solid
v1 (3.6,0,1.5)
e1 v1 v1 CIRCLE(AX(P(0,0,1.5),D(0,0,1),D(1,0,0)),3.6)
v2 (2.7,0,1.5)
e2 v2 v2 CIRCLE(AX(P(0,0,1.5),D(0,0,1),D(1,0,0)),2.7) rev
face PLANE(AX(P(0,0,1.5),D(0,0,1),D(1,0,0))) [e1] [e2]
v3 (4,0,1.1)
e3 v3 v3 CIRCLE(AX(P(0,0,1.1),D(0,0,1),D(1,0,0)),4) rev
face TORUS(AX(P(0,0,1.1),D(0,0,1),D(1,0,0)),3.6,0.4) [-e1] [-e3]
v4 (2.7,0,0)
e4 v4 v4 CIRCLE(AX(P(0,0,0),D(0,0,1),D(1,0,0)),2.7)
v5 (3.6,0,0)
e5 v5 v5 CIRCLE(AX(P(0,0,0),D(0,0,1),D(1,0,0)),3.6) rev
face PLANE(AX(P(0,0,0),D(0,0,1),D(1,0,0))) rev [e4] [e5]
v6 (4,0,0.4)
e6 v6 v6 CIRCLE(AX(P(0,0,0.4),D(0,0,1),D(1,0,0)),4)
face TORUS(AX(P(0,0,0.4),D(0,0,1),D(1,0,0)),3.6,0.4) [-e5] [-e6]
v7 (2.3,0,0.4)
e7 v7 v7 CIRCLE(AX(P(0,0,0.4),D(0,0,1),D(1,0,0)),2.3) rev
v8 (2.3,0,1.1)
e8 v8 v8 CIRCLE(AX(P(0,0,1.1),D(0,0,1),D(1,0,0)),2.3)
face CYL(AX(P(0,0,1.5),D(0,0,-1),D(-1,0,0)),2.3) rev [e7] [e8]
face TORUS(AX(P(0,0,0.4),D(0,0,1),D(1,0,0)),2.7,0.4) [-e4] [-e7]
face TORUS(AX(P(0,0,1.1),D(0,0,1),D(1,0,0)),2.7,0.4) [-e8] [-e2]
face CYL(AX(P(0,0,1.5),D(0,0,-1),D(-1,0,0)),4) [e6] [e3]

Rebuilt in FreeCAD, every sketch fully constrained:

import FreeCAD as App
import Part
import Sketcher
Q = App.Units.Quantity


def edges_at(feature, points):
    """Names of the edges that pass closest to the given points."""
    edges = feature.Shape.Edges
    near = lambda p: min(range(len(edges)), key=lambda i: edges[i].distToShape(Part.Vertex(*p))[0])
    return sorted({f"Edge{near(p) + 1}" for p in points})

doc = App.newDocument("Part")
body = doc.addObject("PartDesign::Body", "Body")

# Sketch on XY plane
sketch1 = body.newObject("Sketcher::SketchObject", "Sketch")
sketch1.AttachmentSupport = (doc.getObject("XY_Plane"), [""])
sketch1.MapMode = "FlatFace"
sketch1.addGeometry(Part.Circle(App.Vector(0, 0, 0), App.Vector(0, 0, 1), 4), False)
sketch1.addGeometry(Part.Circle(App.Vector(0, 0, 0), App.Vector(0, 0, 1), 2.3), False)
sketch1.addConstraint(Sketcher.Constraint("Coincident", 0, 3, -1, 1))
sketch1.addConstraint(Sketcher.Constraint("Coincident", 1, 3, -1, 1))
sketch1.addConstraint(Sketcher.Constraint("Diameter", 0, Q("8 mm")))
sketch1.addConstraint(Sketcher.Constraint("Diameter", 1, Q("4.6 mm")))
pad1 = body.newObject("PartDesign::Pad", "Pad")
pad1.Profile = sketch1
pad1.Length = 1.5
doc.recompute()

fillet = body.newObject("PartDesign::Fillet", "Fillet")
fillet.Base = (pad1, edges_at(pad1, [
    (-4, 0, 0),
    (-4, 0, 1.5),
    (-2.3, 0, 0),
    (-2.3, 0, 1.5),
]))
fillet.Radius = 0.4

doc.recompute()
